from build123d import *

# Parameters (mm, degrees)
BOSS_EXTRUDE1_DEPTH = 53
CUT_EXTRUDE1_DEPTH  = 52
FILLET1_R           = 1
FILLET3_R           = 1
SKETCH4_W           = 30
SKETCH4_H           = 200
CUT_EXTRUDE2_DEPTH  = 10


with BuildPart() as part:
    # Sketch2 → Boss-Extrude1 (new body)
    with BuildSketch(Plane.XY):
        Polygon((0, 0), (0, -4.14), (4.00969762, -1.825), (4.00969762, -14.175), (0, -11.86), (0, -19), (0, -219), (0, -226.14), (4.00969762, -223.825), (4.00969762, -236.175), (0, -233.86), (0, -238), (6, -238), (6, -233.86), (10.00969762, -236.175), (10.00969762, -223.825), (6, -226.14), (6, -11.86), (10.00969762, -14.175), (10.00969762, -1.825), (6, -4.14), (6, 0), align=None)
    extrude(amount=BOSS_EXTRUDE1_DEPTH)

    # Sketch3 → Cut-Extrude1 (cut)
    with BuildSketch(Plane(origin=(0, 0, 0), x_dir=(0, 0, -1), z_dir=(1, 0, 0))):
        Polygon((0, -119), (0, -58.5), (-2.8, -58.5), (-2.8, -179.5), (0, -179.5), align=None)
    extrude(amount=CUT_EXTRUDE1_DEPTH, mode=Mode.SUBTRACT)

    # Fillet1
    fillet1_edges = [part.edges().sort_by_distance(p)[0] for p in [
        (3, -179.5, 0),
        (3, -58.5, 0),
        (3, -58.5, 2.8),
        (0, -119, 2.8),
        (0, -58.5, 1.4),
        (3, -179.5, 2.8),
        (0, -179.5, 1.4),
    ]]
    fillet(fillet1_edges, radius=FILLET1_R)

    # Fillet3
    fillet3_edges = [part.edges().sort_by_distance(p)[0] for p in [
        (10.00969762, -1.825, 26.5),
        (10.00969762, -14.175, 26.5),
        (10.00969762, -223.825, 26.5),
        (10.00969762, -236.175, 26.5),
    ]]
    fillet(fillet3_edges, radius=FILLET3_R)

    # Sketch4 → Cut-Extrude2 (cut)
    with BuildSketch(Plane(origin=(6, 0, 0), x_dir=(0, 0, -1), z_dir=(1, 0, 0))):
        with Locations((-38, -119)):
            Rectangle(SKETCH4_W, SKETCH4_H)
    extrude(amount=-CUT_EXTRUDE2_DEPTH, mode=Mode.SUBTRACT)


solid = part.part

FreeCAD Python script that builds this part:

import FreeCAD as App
import Part
import Sketcher
from FreeCAD import Vector
Q = App.Units.Quantity


def edges_at(feature, points):
    """Names of the edges that pass closest to the given points."""
    edges = feature.Shape.Edges
    near = lambda p: min(range(len(edges)), key=lambda i: edges[i].distToShape(Part.Vertex(*p))[0])
    return sorted({f"Edge{near(p) + 1}" for p in points})

doc = App.newDocument("Part")
params = doc.addObject("Spreadsheet::Sheet", "Params")
for row, (alias, value) in enumerate([
    ("sketch1_width", "6 mm"),
    ("sketch1_height", "4.14 mm"),
    ("sketch1_height2", "12.35 mm"),
    ("pad1_length", "53 mm"),
    ("sketch2_width", "121 mm"),
    ("sketch2_height", "2.8 mm"),
    ("pocket1_length", "52 mm"),
    ("fillet_radius", "1 mm"),
    ("fillet2_radius", "1 mm"),
    ("sketch3_width", "200 mm"),
    ("sketch3_height", "30 mm"),
    ("pocket2_length", "10 mm"),
], start=1):
    params.set(f"A{row}", alias)
    params.set(f"B{row}", "=" + value)
    params.setAlias(f"B{row}", alias)

body = doc.addObject("PartDesign::Body", "Body")

# Sketch on XY plane
sketch1 = body.newObject("Sketcher::SketchObject", "Sketch")
sketch1.AttachmentSupport = (doc.getObject("XY_Plane"), [""])
sketch1.MapMode = "FlatFace"
sketch1.addGeometry(Part.LineSegment(Vector(0, 0, 0), Vector(0, -4.1, 0)), False)
sketch1.addGeometry(Part.LineSegment(Vector(0, -4.1, 0), Vector(4, -1.8, 0)), False)
sketch1.addGeometry(Part.LineSegment(Vector(4, -1.8, 0), Vector(4, -14.2, 0)), False)
sketch1.addGeometry(Part.LineSegment(Vector(4, -14.2, 0), Vector(0, -11.9, 0)), False)
sketch1.addGeometry(Part.LineSegment(Vector(0, -11.9, 0), Vector(0, -226.1, 0)), False)
sketch1.addGeometry(Part.LineSegment(Vector(0, -226.1, 0), Vector(4, -223.8, 0)), False)
sketch1.addGeometry(Part.LineSegment(Vector(4, -223.8, 0), Vector(4, -236.2, 0)), False)
sketch1.addGeometry(Part.LineSegment(Vector(4, -236.2, 0), Vector(0, -233.9, 0)), False)
sketch1.addGeometry(Part.LineSegment(Vector(0, -233.9, 0), Vector(0, -238, 0)), False)
sketch1.addGeometry(Part.LineSegment(Vector(0, -238, 0), Vector(6, -238, 0)), False)
sketch1.addGeometry(Part.LineSegment(Vector(6, -238, 0), Vector(6, -233.9, 0)), False)
sketch1.addGeometry(Part.LineSegment(Vector(6, -233.9, 0), Vector(10, -236.2, 0)), False)
sketch1.addGeometry(Part.LineSegment(Vector(10, -236.2, 0), Vector(10, -223.8, 0)), False)
sketch1.addGeometry(Part.LineSegment(Vector(10, -223.8, 0), Vector(6, -226.1, 0)), False)
sketch1.addGeometry(Part.LineSegment(Vector(6, -226.1, 0), Vector(6, -11.9, 0)), False)
sketch1.addGeometry(Part.LineSegment(Vector(6, -11.9, 0), Vector(10, -14.2, 0)), False)
sketch1.addGeometry(Part.LineSegment(Vector(10, -14.2, 0), Vector(10, -1.8, 0)), False)
sketch1.addGeometry(Part.LineSegment(Vector(10, -1.8, 0), Vector(6, -4.1, 0)), False)
sketch1.addGeometry(Part.LineSegment(Vector(6, -4.1, 0), Vector(6, 0, 0)), False)
sketch1.addGeometry(Part.LineSegment(Vector(6, 0, 0), Vector(0, 0, 0)), False)
sketch1.addConstraint(Sketcher.Constraint("Coincident", 0, 2, 1, 1))
sketch1.addConstraint(Sketcher.Constraint("Coincident", 1, 2, 2, 1))
sketch1.addConstraint(Sketcher.Constraint("Coincident", 2, 2, 3, 1))
sketch1.addConstraint(Sketcher.Constraint("Coincident", 3, 2, 4, 1))
sketch1.addConstraint(Sketcher.Constraint("Coincident", 4, 2, 5, 1))
sketch1.addConstraint(Sketcher.Constraint("Coincident", 5, 2, 6, 1))
sketch1.addConstraint(Sketcher.Constraint("Coincident", 6, 2, 7, 1))
sketch1.addConstraint(Sketcher.Constraint("Coincident", 7, 2, 8, 1))
sketch1.addConstraint(Sketcher.Constraint("Coincident", 8, 2, 9, 1))
sketch1.addConstraint(Sketcher.Constraint("Coincident", 9, 2, 10, 1))
sketch1.addConstraint(Sketcher.Constraint("Coincident", 10, 2, 11, 1))
sketch1.addConstraint(Sketcher.Constraint("Coincident", 11, 2, 12, 1))
sketch1.addConstraint(Sketcher.Constraint("Coincident", 12, 2, 13, 1))
sketch1.addConstraint(Sketcher.Constraint("Coincident", 13, 2, 14, 1))
sketch1.addConstraint(Sketcher.Constraint("Coincident", 14, 2, 15, 1))
sketch1.addConstraint(Sketcher.Constraint("Coincident", 15, 2, 16, 1))
sketch1.addConstraint(Sketcher.Constraint("Coincident", 16, 2, 17, 1))
sketch1.addConstraint(Sketcher.Constraint("Coincident", 17, 2, 18, 1))
sketch1.addConstraint(Sketcher.Constraint("Coincident", 18, 2, 19, 1))
sketch1.addConstraint(Sketcher.Constraint("Coincident", 19, 2, 0, 1))
sketch1.addConstraint(Sketcher.Constraint("Vertical", 0))
sketch1.addConstraint(Sketcher.Constraint("Vertical", 2))
sketch1.addConstraint(Sketcher.Constraint("Vertical", 4))
sketch1.addConstraint(Sketcher.Constraint("Vertical", 6))
sketch1.addConstraint(Sketcher.Constraint("Vertical", 8))
sketch1.addConstraint(Sketcher.Constraint("Horizontal", 9))
sketch1.addConstraint(Sketcher.Constraint("Vertical", 10))
sketch1.addConstraint(Sketcher.Constraint("Vertical", 12))
sketch1.addConstraint(Sketcher.Constraint("Vertical", 14))
sketch1.addConstraint(Sketcher.Constraint("Vertical", 16))
sketch1.addConstraint(Sketcher.Constraint("Vertical", 18))
sketch1.addConstraint(Sketcher.Constraint("Horizontal", 19))
sketch1.addConstraint(Sketcher.Constraint("Coincident", 19, 2, -1, 1))
sketch1.addConstraint(Sketcher.Constraint("PointOnObject", 3, 2, -2))
sketch1.addConstraint(Sketcher.Constraint("PointOnObject", 7, 2, -2))
sketch1.addConstraint(Sketcher.Constraint("Parallel", 1, 5))
sketch1.addConstraint(Sketcher.Constraint("Parallel", 3, 7))
sketch1.addConstraint(Sketcher.Constraint("Parallel", 7, 11))
sketch1.addConstraint(Sketcher.Constraint("Parallel", 5, 13))
sketch1.addConstraint(Sketcher.Constraint("Parallel", 11, 15))
sketch1.addConstraint(Sketcher.Constraint("Parallel", 13, 17))
sketch1.addConstraint(Sketcher.Constraint("Horizontal", 7, 2, 10, 2))
sketch1.addConstraint(Sketcher.Constraint("Horizontal", 6, 2, 11, 2))
sketch1.addConstraint(Sketcher.Constraint("Horizontal", 5, 2, 12, 2))
sketch1.addConstraint(Sketcher.Constraint("Horizontal", 4, 2, 13, 2))
sketch1.addConstraint(Sketcher.Constraint("Horizontal", 3, 2, 14, 2))
sketch1.addConstraint(Sketcher.Constraint("Horizontal", 2, 2, 15, 2))
sketch1.addConstraint(Sketcher.Constraint("Horizontal", 1, 2, 16, 2))
sketch1.addConstraint(Sketcher.Constraint("Horizontal", 0, 2, 17, 2))
sketch1.addConstraint(Sketcher.Constraint("Vertical", 2, 2, 5, 2))
sketch1.addConstraint(Sketcher.Constraint("Equal", 2, 6))
sketch1.addConstraint(Sketcher.Constraint("Equal", 0, 8))
sketch1.addConstraint(Sketcher.Constraint("Equal", 1, 3))
sketch1.addConstraint(Sketcher.Constraint("DistanceX", 9, 1, 9, 2, Q("6 mm")))
sketch1.addConstraint(Sketcher.Constraint("Angle", 1, Q("30 deg")))
sketch1.addConstraint(Sketcher.Constraint("DistanceY", 8, 2, -1, 1, Q("238 mm")))
sketch1.addConstraint(Sketcher.Constraint("DistanceY", 4, 2, 0, 2, Q("222 mm")))
sketch1.addConstraint(Sketcher.Constraint("DistanceY", 0, 2, 0, 1, Q("4.14 mm")))
sketch1.addConstraint(Sketcher.Constraint("DistanceY", 2, 2, 2, 1, Q("12.35 mm")))
sketch1.setExpression("Constraints[53]", "Params.sketch1_width")
sketch1.setExpression("Constraints[57]", "Params.sketch1_height")
sketch1.setExpression("Constraints[58]", "Params.sketch1_height2")
pad1 = body.newObject("PartDesign::Pad", "Pad")
pad1.Profile = sketch1
pad1.setExpression("Length", "Params.pad1_length")

# Sketch on YZ plane
sketch2 = body.newObject("Sketcher::SketchObject", "Sketch001")
sketch2.AttachmentSupport = (doc.getObject("YZ_Plane"), [""])
sketch2.MapMode = "FlatFace"
sketch2.addGeometry(Part.LineSegment(Vector(-58.5, 0, 0), Vector(-58.5, 2.8, 0)), False)
sketch2.addGeometry(Part.LineSegment(Vector(-58.5, 2.8, 0), Vector(-179.5, 2.8, 0)), False)
sketch2.addGeometry(Part.LineSegment(Vector(-179.5, 2.8, 0), Vector(-179.5, 0, 0)), False)
sketch2.addGeometry(Part.LineSegment(Vector(-179.5, 0, 0), Vector(-58.5, 0, 0)), False)
sketch2.addConstraint(Sketcher.Constraint("Coincident", 0, 2, 1, 1))
sketch2.addConstraint(Sketcher.Constraint("Coincident", 1, 2, 2, 1))
sketch2.addConstraint(Sketcher.Constraint("Coincident", 2, 2, 3, 1))
sketch2.addConstraint(Sketcher.Constraint("Coincident", 3, 2, 0, 1))
sketch2.addConstraint(Sketcher.Constraint("Vertical", 0))
sketch2.addConstraint(Sketcher.Constraint("Horizontal", 1))
sketch2.addConstraint(Sketcher.Constraint("Vertical", 2))
sketch2.addConstraint(Sketcher.Constraint("Horizontal", 3))
sketch2.addConstraint(Sketcher.Constraint("PointOnObject", 2, 2, -1))
sketch2.addConstraint(Sketcher.Constraint("DistanceX", 1, 2, 1, 1, Q("121 mm")))
sketch2.addConstraint(Sketcher.Constraint("DistanceY", 0, 1, 0, 2, Q("2.8 mm")))
sketch2.addConstraint(Sketcher.Constraint("DistanceX", 0, 2, -1, 1, Q("58.5 mm")))
sketch2.setExpression("Constraints[9]", "Params.sketch2_width")
sketch2.setExpression("Constraints[10]", "Params.sketch2_height")
pocket1 = body.newObject("PartDesign::Pocket", "Pocket")
pocket1.Profile = sketch2
pocket1.setExpression("Length", "Params.pocket1_length")
pocket1.Reversed = True
doc.recompute()

fillet = body.newObject("PartDesign::Fillet", "Fillet")
fillet.Base = (pocket1, edges_at(pocket1, [
    (3, -179.5, 0),
    (3, -58.5, 0),
    (3, -58.5, 2.8),
    (0, -119, 2.8),
    (0, -58.5, 1.4),
    (3, -179.5, 2.8),
    (0, -179.5, 1.4),
]))
fillet.setExpression("Radius", "Params.fillet_radius")
doc.recompute()

fillet2 = body.newObject("PartDesign::Fillet", "Fillet001")
fillet2.Base = (fillet, edges_at(fillet, [
    (10.01, -1.825, 26.5),
    (10.01, -14.175, 26.5),
    (10.01, -223.825, 26.5),
    (10.01, -236.175, 26.5),
]))
fillet2.setExpression("Radius", "Params.fillet2_radius")

# Sketch on YZ plane
sketch3 = body.newObject("Sketcher::SketchObject", "Sketch002")
sketch3.AttachmentSupport = (doc.getObject("YZ_Plane"), [""])
sketch3.MapMode = "FlatFace"
sketch3.AttachmentOffset = App.Placement(Vector(0, 0, 6), App.Rotation())
sketch3.addGeometry(Part.LineSegment(Vector(-19, 53, 0), Vector(-219, 53, 0)), False)
sketch3.addGeometry(Part.LineSegment(Vector(-219, 53, 0), Vector(-219, 23, 0)), False)
sketch3.addGeometry(Part.LineSegment(Vector(-219, 23, 0), Vector(-19, 23, 0)), False)
sketch3.addGeometry(Part.LineSegment(Vector(-19, 23, 0), Vector(-19, 53, 0)), False)
sketch3.addConstraint(Sketcher.Constraint("Coincident", 0, 2, 1, 1))
sketch3.addConstraint(Sketcher.Constraint("Coincident", 1, 2, 2, 1))
sketch3.addConstraint(Sketcher.Constraint("Coincident", 2, 2, 3, 1))
sketch3.addConstraint(Sketcher.Constraint("Coincident", 3, 2, 0, 1))
sketch3.addConstraint(Sketcher.Constraint("Horizontal", 0))
sketch3.addConstraint(Sketcher.Constraint("Vertical", 1))
sketch3.addConstraint(Sketcher.Constraint("Horizontal", 2))
sketch3.addConstraint(Sketcher.Constraint("Vertical", 3))
sketch3.addConstraint(Sketcher.Constraint("DistanceX", 0, 2, 0, 1, Q("200 mm")))
sketch3.addConstraint(Sketcher.Constraint("DistanceY", 1, 2, 1, 1, Q("30 mm")))
sketch3.addConstraint(Sketcher.Constraint("DistanceX", 0, 2, -1, 1, Q("219 mm")))
sketch3.addConstraint(Sketcher.Constraint("DistanceY", -1, 1, 0, 2, Q("53 mm")))
sketch3.setExpression("Constraints[8]", "Params.sketch3_width")
sketch3.setExpression("Constraints[9]", "Params.sketch3_height")
pocket2 = body.newObject("PartDesign::Pocket", "Pocket001")
pocket2.Profile = sketch3
pocket2.setExpression("Length", "Params.pocket2_length")

doc.recompute()
